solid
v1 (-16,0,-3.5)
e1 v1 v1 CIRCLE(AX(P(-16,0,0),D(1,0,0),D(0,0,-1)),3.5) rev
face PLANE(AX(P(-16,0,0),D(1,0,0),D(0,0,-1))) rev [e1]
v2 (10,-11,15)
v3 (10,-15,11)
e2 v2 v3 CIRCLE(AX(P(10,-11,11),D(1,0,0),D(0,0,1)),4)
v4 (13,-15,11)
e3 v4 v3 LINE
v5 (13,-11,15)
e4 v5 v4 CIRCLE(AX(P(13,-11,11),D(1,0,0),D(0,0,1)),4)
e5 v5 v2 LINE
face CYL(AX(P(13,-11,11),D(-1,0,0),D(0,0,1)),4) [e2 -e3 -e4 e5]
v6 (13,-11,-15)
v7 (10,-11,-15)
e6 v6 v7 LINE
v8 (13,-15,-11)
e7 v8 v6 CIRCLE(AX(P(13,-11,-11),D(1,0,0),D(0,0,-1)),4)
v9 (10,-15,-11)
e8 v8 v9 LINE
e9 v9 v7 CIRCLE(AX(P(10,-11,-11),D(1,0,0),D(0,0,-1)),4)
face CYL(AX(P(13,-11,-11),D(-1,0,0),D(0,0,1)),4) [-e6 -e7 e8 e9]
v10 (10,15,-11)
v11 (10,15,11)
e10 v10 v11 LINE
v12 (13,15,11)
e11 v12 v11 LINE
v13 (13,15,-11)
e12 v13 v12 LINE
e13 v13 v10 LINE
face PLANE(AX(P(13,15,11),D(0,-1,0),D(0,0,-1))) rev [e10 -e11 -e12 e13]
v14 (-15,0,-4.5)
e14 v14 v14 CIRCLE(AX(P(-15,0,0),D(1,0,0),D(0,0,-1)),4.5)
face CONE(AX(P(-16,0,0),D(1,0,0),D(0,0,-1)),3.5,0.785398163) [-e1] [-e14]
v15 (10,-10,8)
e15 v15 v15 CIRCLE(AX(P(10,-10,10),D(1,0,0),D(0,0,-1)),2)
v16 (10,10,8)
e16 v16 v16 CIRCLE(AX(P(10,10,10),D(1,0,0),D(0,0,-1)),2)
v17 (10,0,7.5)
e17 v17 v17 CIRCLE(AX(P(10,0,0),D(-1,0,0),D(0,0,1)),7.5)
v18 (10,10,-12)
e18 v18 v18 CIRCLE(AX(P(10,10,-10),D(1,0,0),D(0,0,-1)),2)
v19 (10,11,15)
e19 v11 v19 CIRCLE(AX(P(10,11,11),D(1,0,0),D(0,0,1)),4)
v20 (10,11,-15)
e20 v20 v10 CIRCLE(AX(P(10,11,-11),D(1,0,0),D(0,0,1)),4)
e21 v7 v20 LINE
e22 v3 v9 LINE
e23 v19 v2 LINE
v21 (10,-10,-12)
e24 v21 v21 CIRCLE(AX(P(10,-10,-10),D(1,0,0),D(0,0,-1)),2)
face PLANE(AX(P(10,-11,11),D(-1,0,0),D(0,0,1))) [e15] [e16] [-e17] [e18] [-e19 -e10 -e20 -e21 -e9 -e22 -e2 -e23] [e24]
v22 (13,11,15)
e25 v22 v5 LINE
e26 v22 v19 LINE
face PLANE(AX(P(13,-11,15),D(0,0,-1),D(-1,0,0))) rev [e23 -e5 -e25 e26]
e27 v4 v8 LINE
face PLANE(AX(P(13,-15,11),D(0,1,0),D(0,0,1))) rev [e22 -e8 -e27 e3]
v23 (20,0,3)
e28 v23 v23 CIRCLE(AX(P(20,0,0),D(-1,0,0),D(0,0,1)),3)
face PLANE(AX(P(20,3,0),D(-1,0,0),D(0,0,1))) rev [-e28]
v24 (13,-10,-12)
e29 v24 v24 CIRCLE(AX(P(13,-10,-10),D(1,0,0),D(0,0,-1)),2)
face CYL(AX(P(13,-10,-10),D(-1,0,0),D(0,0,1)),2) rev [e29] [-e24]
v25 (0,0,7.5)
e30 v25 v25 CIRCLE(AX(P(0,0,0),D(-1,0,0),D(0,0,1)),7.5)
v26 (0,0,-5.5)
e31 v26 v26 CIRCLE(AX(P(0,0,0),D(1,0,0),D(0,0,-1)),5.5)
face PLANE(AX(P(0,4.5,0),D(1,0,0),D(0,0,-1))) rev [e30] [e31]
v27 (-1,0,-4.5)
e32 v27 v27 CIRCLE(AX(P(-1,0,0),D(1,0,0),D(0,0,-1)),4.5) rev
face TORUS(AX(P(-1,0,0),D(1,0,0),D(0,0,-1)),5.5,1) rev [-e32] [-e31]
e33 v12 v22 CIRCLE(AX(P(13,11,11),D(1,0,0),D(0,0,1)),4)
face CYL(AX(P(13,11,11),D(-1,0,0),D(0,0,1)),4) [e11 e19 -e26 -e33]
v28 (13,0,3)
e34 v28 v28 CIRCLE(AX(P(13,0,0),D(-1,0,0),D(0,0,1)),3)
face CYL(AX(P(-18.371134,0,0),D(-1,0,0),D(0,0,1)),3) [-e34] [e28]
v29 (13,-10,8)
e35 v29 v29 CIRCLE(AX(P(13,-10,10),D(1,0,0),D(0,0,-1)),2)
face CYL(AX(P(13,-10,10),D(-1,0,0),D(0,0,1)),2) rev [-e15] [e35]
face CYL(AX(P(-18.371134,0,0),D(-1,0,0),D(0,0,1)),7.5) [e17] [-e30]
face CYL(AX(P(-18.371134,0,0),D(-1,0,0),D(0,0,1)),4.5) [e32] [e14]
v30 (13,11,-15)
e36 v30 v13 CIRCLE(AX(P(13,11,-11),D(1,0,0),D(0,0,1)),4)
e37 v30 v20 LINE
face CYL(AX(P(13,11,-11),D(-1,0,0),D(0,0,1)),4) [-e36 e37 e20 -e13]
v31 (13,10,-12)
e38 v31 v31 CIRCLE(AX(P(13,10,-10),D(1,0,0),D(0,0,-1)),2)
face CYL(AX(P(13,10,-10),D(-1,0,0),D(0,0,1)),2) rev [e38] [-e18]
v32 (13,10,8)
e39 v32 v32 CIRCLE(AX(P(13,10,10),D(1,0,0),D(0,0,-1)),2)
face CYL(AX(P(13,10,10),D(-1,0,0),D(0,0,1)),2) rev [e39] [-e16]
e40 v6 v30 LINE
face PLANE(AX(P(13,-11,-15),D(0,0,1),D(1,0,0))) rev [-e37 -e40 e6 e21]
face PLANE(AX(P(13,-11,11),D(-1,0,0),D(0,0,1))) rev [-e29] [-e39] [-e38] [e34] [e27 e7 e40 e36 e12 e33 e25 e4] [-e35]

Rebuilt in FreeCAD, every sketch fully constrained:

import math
import FreeCAD as App
import Part
import Sketcher


def edges_at(feature, points):
    """Names of the edges that pass closest to the given points."""
    edges = feature.Shape.Edges
    near = lambda p: min(range(len(edges)), key=lambda i: edges[i].distToShape(Part.Vertex(*p))[0])
    return sorted({f"Edge{near(p) + 1}" for p in points})


def add_polygon(sketch, points):
    """Adds a closed chain of lines whose ends are joined by coincident constraints."""
    first, n = sketch.GeometryCount, len(points)
    for a, b in zip(points, points[1:] + points[:1]):
        sketch.addGeometry(Part.LineSegment(App.Vector(*a, 0), App.Vector(*b, 0)), False)
    for i in range(n):
        sketch.addConstraint(Sketcher.Constraint("Coincident", first + i, 2, first + (i + 1) % n, 1))

doc = App.newDocument("Part")
body = doc.addObject("PartDesign::Body", "Body")

sketch1 = doc.addObject("Sketcher::SketchObject", "Sketch")
body.addObject(sketch1)
sketch1.AttachmentSupport = (doc.XY_Plane, [""])
sketch1.MapMode = "FlatFace"
add_polygon(sketch1, [(-16, 4.5), (-16, 0), (20, 0), (20, 3), (10, 3), (10, 7.5), (0, 7.5), (0, 4.5)])
sketch1.addConstraint(Sketcher.Constraint("Vertical", 0))
sketch1.addConstraint(Sketcher.Constraint("Horizontal", 1))
sketch1.addConstraint(Sketcher.Constraint("Vertical", 2))
sketch1.addConstraint(Sketcher.Constraint("Horizontal", 3))
sketch1.addConstraint(Sketcher.Constraint("Vertical", 4))
sketch1.addConstraint(Sketcher.Constraint("Horizontal", 5))
sketch1.addConstraint(Sketcher.Constraint("Vertical", 6))
sketch1.addConstraint(Sketcher.Constraint("Horizontal", 7))
sketch1.addConstraint(Sketcher.Constraint("PointOnObject", 0, 2, -1))
sketch1.addConstraint(Sketcher.Constraint("PointOnObject", 5, 2, -2))
sketch1.addConstraint(Sketcher.Constraint("Equal", 3, 5))
sketch1.addConstraint(Sketcher.Constraint("Equal", 0, 4))
sketch1.addConstraint(Sketcher.Constraint("DistanceX", 1, 1, 1, 2, 36.0))
sketch1.addConstraint(Sketcher.Constraint("DistanceX", 3, 2, 3, 1, 10.0))
sketch1.addConstraint(Sketcher.Constraint("DistanceY", 2, 1, 2, 2, 3.0))
sketch1.addConstraint(Sketcher.Constraint("DistanceY", 0, 2, 0, 1, 4.5))
revolution = doc.addObject("PartDesign::Revolution", "Revolution")
body.addObject(revolution)
revolution.Profile = sketch1
revolution.ReferenceAxis = (sketch1, ["H_Axis"])
revolution.Angle = 360
doc.recompute()

fillet = doc.addObject("PartDesign::Fillet", "Fillet")
body.addObject(fillet)
fillet.Base = (revolution, edges_at(revolution, [(0, -4.5, 0)]))
fillet.Radius = 1
doc.recompute()

chamfer = doc.addObject("PartDesign::Chamfer", "Chamfer")
body.addObject(chamfer)
chamfer.Base = (fillet, edges_at(fillet, [(-16, -4.5, 0)]))
chamfer.Size = 1

sketch2 = doc.addObject("Sketcher::SketchObject", "Sketch001")
body.addObject(sketch2)
sketch2.AttachmentSupport = (doc.YZ_Plane, [""])
sketch2.MapMode = "FlatFace"
sketch2.AttachmentOffset = App.Placement(App.Vector(0, 0, 10), App.Rotation())
sketch2.addGeometry(Part.LineSegment(App.Vector(-15, 11, 0), App.Vector(-15, -11, 0)), False)
sketch2.addGeometry(Part.ArcOfCircle(Part.Circle(App.Vector(-11, -11, 0), App.Vector(0, 0, 1), 4), math.radians(180), math.radians(270)), False)
sketch2.addGeometry(Part.LineSegment(App.Vector(-11, -15, 0), App.Vector(11, -15, 0)), False)
sketch2.addGeometry(Part.ArcOfCircle(Part.Circle(App.Vector(11, -11, 0), App.Vector(0, 0, 1), 4), math.radians(-90), math.radians(0)), False)
sketch2.addGeometry(Part.LineSegment(App.Vector(15, -11, 0), App.Vector(15, 11, 0)), False)
sketch2.addGeometry(Part.ArcOfCircle(Part.Circle(App.Vector(11, 11, 0), App.Vector(0, 0, 1), 4), math.radians(0), math.radians(90)), False)
sketch2.addGeometry(Part.LineSegment(App.Vector(11, 15, 0), App.Vector(-11, 15, 0)), False)
sketch2.addGeometry(Part.ArcOfCircle(Part.Circle(App.Vector(-11, 11, 0), App.Vector(0, 0, 1), 4), math.radians(90), math.radians(180)), False)
sketch2.addGeometry(Part.Circle(App.Vector(-10, 10, 0), App.Vector(0, 0, 1), 2), False)
sketch2.addGeometry(Part.Circle(App.Vector(-10, -10, 0), App.Vector(0, 0, 1), 2), False)
sketch2.addGeometry(Part.Circle(App.Vector(10, 10, 0), App.Vector(0, 0, 1), 2), False)
sketch2.addGeometry(Part.Circle(App.Vector(10, -10, 0), App.Vector(0, 0, 1), 2), False)
sketch2.addConstraint(Sketcher.Constraint("Tangent", 0, 2, 1, 1))
sketch2.addConstraint(Sketcher.Constraint("Tangent", 1, 2, 2, 1))
sketch2.addConstraint(Sketcher.Constraint("Tangent", 2, 2, 3, 1))
sketch2.addConstraint(Sketcher.Constraint("Tangent", 3, 2, 4, 1))
sketch2.addConstraint(Sketcher.Constraint("Tangent", 4, 2, 5, 1))
sketch2.addConstraint(Sketcher.Constraint("Tangent", 5, 2, 6, 1))
sketch2.addConstraint(Sketcher.Constraint("Tangent", 6, 2, 7, 1))
sketch2.addConstraint(Sketcher.Constraint("Tangent", 7, 2, 0, 1))
sketch2.addConstraint(Sketcher.Constraint("Vertical", 0))
sketch2.addConstraint(Sketcher.Constraint("Horizontal", 2))
sketch2.addConstraint(Sketcher.Constraint("Vertical", 4))
sketch2.addConstraint(Sketcher.Constraint("Horizontal", 6))
sketch2.addConstraint(Sketcher.Constraint("Equal", 1, 3))
sketch2.addConstraint(Sketcher.Constraint("Equal", 3, 5))
sketch2.addConstraint(Sketcher.Constraint("Equal", 5, 7))
sketch2.addConstraint(Sketcher.Constraint("Equal", 8, 9))
sketch2.addConstraint(Sketcher.Constraint("Equal", 9, 10))
sketch2.addConstraint(Sketcher.Constraint("Equal", 10, 11))
sketch2.addConstraint(Sketcher.Constraint("Symmetric", 1, 3, 5, 3, -1, 1))
sketch2.addConstraint(Sketcher.Constraint("Symmetric", 9, 3, 10, 3, -1, 1))
sketch2.addConstraint(Sketcher.Constraint("Symmetric", 8, 3, 11, 3, -1, 1))
sketch2.addConstraint(Sketcher.Constraint("Symmetric", 8, 3, 10, 3, -2))
sketch2.addConstraint(Sketcher.Constraint("Equal", 6, 0))
sketch2.addConstraint(Sketcher.Constraint("Diameter", 8, 4.0))
sketch2.addConstraint(Sketcher.Constraint("Radius", 1, 4.0))
sketch2.addConstraint(Sketcher.Constraint("DistanceX", 2, 1, 2, 2, 22.0))
sketch2.addConstraint(Sketcher.Constraint("DistanceX", 8, 3, -1, 1, 10.0))
sketch2.addConstraint(Sketcher.Constraint("DistanceY", -1, 1, 8, 3, 10.0))
pad1 = doc.addObject("PartDesign::Pad", "Pad")
body.addObject(pad1)
pad1.Profile = sketch2
pad1.Length = 3

doc.recompute()
